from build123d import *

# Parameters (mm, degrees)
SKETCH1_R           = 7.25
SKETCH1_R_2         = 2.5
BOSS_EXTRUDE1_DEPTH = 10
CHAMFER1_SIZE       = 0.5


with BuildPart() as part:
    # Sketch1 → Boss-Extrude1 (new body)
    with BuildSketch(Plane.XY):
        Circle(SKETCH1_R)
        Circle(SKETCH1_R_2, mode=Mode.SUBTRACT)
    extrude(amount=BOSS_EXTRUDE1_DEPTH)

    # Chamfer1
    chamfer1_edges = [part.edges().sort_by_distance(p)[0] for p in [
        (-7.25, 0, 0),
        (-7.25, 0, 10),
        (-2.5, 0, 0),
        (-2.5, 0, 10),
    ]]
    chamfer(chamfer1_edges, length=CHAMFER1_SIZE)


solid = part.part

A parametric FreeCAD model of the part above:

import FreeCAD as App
import Part
import Sketcher
from FreeCAD import Vector


def edges_at(feature, points):
    """Names of the edges that pass closest to the given points."""
    edges = feature.Shape.Edges
    near = lambda p: min(range(len(edges)), key=lambda i: edges[i].distToShape(Part.Vertex(*p))[0])
    return sorted({f"Edge{near(p) + 1}" for p in points})

doc = App.newDocument("Part")
body = doc.addObject("PartDesign::Body", "Body")

# Sketch on XY plane
sketch1 = body.newObject("Sketcher::SketchObject", "Sketch")
sketch1.AttachmentSupport = (doc.getObject("XY_Plane"), [""])
sketch1.MapMode = "FlatFace"
sketch1.addGeometry([
    Part.Circle(Vector(0, 0, 0), Vector(0, 0, 1), 7.2),
    Part.Circle(Vector(0, 0, 0), Vector(0, 0, 1), 2.5),
], False)
sketch1.addConstraint([
    Sketcher.Constraint("Coincident", 0, 3, -1, 1),
    Sketcher.Constraint("Coincident", 1, 3, -1, 1),
    Sketcher.Constraint("Diameter", 1, 5.0),
    Sketcher.Constraint("Diameter", 0, 14.5),
])
pad1 = body.newObject("PartDesign::Pad", "Pad")
pad1.Profile = sketch1
pad1.Length = 10
doc.recompute()

chamfer = body.newObject("PartDesign::Chamfer", "Chamfer")
chamfer.Base = (pad1, edges_at(pad1, [
    (-7.25, 0, 0),
    (-7.25, 0, 10),
    (-2.5, 0, 0),
    (-2.5, 0, 10),
]))
chamfer.Size = 0.5

doc.recompute()
